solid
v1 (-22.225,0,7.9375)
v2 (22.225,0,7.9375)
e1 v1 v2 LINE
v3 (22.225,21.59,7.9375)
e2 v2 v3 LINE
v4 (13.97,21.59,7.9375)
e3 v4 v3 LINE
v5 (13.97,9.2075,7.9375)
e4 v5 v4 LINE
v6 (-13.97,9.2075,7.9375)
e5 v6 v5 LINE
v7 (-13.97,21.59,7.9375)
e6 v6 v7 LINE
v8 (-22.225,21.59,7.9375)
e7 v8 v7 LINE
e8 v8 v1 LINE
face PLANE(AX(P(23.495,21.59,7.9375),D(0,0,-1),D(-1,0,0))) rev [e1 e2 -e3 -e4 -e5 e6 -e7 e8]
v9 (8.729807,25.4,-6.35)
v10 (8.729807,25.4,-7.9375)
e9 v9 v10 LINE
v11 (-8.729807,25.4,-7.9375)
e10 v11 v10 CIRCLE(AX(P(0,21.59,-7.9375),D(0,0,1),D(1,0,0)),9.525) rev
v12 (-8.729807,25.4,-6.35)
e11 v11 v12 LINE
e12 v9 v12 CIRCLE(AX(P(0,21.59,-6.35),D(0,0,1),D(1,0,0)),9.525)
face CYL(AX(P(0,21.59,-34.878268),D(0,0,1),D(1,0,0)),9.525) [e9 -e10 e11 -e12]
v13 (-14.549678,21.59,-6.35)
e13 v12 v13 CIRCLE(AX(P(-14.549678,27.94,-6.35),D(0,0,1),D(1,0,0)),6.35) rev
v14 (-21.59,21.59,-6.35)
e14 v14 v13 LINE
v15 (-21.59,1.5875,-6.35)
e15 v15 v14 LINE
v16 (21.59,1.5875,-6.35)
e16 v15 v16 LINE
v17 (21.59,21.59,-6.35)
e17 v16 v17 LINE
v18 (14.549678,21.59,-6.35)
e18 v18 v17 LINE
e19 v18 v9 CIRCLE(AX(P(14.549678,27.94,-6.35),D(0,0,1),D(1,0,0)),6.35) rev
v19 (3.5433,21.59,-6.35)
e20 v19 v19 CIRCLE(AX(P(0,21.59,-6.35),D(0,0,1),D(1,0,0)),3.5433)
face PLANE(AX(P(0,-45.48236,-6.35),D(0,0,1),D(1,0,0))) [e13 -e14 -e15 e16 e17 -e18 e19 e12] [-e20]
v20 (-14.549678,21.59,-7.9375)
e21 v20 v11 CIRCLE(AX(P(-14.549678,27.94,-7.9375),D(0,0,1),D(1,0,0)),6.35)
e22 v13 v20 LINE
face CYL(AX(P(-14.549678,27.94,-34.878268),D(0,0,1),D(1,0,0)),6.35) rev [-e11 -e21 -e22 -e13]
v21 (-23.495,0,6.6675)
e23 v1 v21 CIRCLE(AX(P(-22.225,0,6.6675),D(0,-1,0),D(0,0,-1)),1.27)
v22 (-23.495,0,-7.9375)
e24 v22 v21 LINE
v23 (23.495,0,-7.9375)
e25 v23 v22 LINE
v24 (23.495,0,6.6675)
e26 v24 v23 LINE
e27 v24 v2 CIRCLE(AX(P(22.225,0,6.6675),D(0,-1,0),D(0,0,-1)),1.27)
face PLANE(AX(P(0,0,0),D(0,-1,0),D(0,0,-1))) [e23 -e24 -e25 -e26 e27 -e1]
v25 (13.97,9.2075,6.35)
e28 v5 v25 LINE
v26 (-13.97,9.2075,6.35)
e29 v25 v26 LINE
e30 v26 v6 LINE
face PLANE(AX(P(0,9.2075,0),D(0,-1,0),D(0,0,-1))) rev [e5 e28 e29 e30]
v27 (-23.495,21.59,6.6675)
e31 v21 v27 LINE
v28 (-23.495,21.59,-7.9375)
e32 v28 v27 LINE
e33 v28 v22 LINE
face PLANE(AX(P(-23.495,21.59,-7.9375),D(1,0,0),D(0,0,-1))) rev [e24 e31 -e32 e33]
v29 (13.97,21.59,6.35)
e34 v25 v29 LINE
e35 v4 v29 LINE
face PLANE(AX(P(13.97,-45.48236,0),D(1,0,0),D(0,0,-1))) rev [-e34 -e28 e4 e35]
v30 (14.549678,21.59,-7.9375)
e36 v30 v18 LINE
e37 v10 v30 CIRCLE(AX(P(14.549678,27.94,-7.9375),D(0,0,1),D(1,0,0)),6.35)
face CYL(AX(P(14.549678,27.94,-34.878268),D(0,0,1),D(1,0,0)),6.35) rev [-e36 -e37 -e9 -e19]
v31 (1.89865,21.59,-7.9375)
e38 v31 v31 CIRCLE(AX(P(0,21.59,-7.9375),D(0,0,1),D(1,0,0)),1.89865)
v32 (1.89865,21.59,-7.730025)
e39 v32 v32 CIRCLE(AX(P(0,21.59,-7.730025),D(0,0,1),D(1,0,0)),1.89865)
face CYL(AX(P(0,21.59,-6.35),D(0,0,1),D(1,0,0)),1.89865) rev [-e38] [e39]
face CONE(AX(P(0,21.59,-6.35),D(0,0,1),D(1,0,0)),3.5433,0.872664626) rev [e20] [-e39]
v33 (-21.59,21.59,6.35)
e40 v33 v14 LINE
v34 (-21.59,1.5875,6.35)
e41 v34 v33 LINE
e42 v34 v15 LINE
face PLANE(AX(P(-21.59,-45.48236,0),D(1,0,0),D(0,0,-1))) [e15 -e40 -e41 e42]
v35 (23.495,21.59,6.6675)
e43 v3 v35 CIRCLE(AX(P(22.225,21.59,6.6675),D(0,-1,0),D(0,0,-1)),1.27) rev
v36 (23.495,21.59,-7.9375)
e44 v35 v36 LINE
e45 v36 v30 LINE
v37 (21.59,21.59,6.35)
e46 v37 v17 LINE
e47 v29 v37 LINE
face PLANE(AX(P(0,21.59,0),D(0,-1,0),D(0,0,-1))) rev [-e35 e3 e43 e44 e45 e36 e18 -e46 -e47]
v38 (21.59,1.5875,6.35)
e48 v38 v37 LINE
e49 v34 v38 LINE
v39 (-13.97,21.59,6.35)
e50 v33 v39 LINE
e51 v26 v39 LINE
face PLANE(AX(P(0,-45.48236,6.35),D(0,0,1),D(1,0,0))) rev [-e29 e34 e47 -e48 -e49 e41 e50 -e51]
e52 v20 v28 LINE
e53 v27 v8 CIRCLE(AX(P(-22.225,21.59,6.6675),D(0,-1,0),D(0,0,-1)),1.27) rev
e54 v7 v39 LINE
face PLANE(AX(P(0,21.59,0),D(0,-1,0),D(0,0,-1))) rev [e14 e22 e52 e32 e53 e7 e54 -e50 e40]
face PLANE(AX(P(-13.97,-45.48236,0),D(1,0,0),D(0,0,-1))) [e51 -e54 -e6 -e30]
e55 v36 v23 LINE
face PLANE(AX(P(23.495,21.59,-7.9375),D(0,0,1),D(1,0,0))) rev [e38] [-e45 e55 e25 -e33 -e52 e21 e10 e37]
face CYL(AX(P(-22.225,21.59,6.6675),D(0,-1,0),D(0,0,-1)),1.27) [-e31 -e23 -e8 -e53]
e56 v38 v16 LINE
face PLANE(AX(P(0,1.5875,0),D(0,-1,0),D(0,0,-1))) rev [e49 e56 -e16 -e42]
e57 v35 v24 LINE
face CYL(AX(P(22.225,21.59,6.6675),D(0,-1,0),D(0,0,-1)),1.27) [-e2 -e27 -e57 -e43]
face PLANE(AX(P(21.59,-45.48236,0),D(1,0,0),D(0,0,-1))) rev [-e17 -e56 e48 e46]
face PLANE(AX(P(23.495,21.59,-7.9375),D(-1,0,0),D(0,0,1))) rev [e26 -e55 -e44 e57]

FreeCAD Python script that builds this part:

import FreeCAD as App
import Part
import Sketcher
Q = App.Units.Quantity


def edges_at(feature, points):
    """Names of the edges that pass closest to the given points."""
    edges = feature.Shape.Edges
    near = lambda p: min(range(len(edges)), key=lambda i: edges[i].distToShape(Part.Vertex(*p))[0])
    return sorted({f"Edge{near(p) + 1}" for p in points})


def add_polygon(sketch, points):
    """Adds a closed chain of lines whose ends are joined by coincident constraints."""
    first, n = sketch.GeometryCount, len(points)
    for a, b in zip(points, points[1:] + points[:1]):
        sketch.addGeometry(Part.LineSegment(App.Vector(*a, 0), App.Vector(*b, 0)), False)
    for i in range(n):
        sketch.addConstraint(Sketcher.Constraint("Coincident", first + i, 2, first + (i + 1) % n, 1))

doc = App.newDocument("Part")
body = doc.addObject("PartDesign::Body", "Body")

sketch1 = doc.addObject("Sketcher::SketchObject", "Sketch")
body.addObject(sketch1)
sketch1.AttachmentSupport = (doc.XZ_Plane, [""])
sketch1.MapMode = "FlatFace"
add_polygon(sketch1, [(-23.495, -7.9375), (-23.495, 7.9375), (23.495, 7.9375), (23.495, -7.9375)])
sketch1.addConstraint(Sketcher.Constraint("Vertical", 0))
sketch1.addConstraint(Sketcher.Constraint("Horizontal", 1))
sketch1.addConstraint(Sketcher.Constraint("Vertical", 2))
sketch1.addConstraint(Sketcher.Constraint("Horizontal", 3))
sketch1.addConstraint(Sketcher.Constraint("Symmetric", 0, 2, 2, 2, -1, 1))
sketch1.addConstraint(Sketcher.Constraint("DistanceX", 1, 1, 1, 2, Q("1.85 in")))
sketch1.addConstraint(Sketcher.Constraint("DistanceY", 0, 1, 0, 2, Q("0.625 in")))
pad1 = doc.addObject("PartDesign::Pad", "Pad")
body.addObject(pad1)
pad1.Profile = sketch1
pad1.Length = Q("0.85 in")
pad1.Reversed = True

sketch2 = doc.addObject("Sketcher::SketchObject", "Sketch001")
body.addObject(sketch2)
sketch2.AttachmentSupport = (doc.XZ_Plane, [""])
sketch2.MapMode = "FlatFace"
sketch2.AttachmentOffset = App.Placement(App.Vector(0, 0, -0.85 * 25.4), App.Rotation())
add_polygon(sketch2, [(-21.59, -6.35), (-21.59, 6.35), (-13.97, 6.35), (-13.97, 7.9375), (13.97, 7.9375), (13.97, 6.35), (21.59, 6.35), (21.59, -6.35)])
sketch2.addConstraint(Sketcher.Constraint("Vertical", 0))
sketch2.addConstraint(Sketcher.Constraint("Horizontal", 1))
sketch2.addConstraint(Sketcher.Constraint("Vertical", 2))
sketch2.addConstraint(Sketcher.Constraint("Horizontal", 3))
sketch2.addConstraint(Sketcher.Constraint("Vertical", 4))
sketch2.addConstraint(Sketcher.Constraint("Horizontal", 5))
sketch2.addConstraint(Sketcher.Constraint("Vertical", 6))
sketch2.addConstraint(Sketcher.Constraint("Horizontal", 7))
sketch2.addConstraint(Sketcher.Constraint("Symmetric", 0, 2, 6, 2, -1, 1))
sketch2.addConstraint(Sketcher.Constraint("Symmetric", 1, 2, 4, 2, -2))
sketch2.addConstraint(Sketcher.Constraint("DistanceX", 1, 1, 1, 2, Q("0.3 in")))
sketch2.addConstraint(Sketcher.Constraint("DistanceX", 3, 1, 3, 2, Q("1.1 in")))
sketch2.addConstraint(Sketcher.Constraint("DistanceY", 0, 1, 0, 2, Q("0.5 in")))
sketch2.addConstraint(Sketcher.Constraint("DistanceY", 2, 1, 2, 2, Q("0.0625 in")))
pocket1 = doc.addObject("PartDesign::Pocket", "Pocket")
body.addObject(pocket1)
pocket1.Profile = sketch2
pocket1.Length = Q("0.7875 in")
pocket1.Reversed = True

sketch3 = doc.addObject("Sketcher::SketchObject", "Sketch002")
body.addObject(sketch3)
sketch3.AttachmentSupport = (doc.XY_Plane, [""])
sketch3.MapMode = "FlatFace"
sketch3.AttachmentOffset = App.Placement(App.Vector(0, 0, -0.25 * 25.4), App.Rotation())
sketch3.addGeometry(Part.Circle(App.Vector(0, 21.59, 0), App.Vector(0, 0, 1), 9.525), False)
sketch3.addConstraint(Sketcher.Constraint("PointOnObject", 0, 3, -2))
sketch3.addConstraint(Sketcher.Constraint("Diameter", 0, Q("0.75 in")))
sketch3.addConstraint(Sketcher.Constraint("DistanceY", -1, 1, 0, 3, Q("0.85 in")))
pad2 = doc.addObject("PartDesign::Pad", "Pad001")
body.addObject(pad2)
pad2.Profile = sketch3
pad2.Length = Q("0.0625 in")
pad2.Reversed = True

sketch4 = doc.addObject("Sketcher::SketchObject", "Sketch003")
body.addObject(sketch4)
sketch4.AttachmentSupport = (doc.YZ_Plane, [""])
sketch4.MapMode = "FlatFace"
add_polygon(sketch4, [(21.59, -7.9375), (21.59, -6.35), (18.0467, -6.35), (19.69135, -7.730025), (19.69135, -7.9375)])
sketch4.addGeometry(Part.LineSegment(App.Vector(21.59, -6.35, 0), App.Vector(21.59, -7.9375, 0)), True)
sketch4.addConstraint(Sketcher.Constraint("Vertical", 0))
sketch4.addConstraint(Sketcher.Constraint("Horizontal", 1))
sketch4.addConstraint(Sketcher.Constraint("Vertical", 3))
sketch4.addConstraint(Sketcher.Constraint("Horizontal", 4))
sketch4.addConstraint(Sketcher.Constraint("Vertical", 5))
sketch4.addConstraint(Sketcher.Constraint("Coincident", 5, 1, 0, 2))
sketch4.addConstraint(Sketcher.Constraint("Horizontal", 3, 2, 5, 2))
sketch4.addConstraint(Sketcher.Constraint("Angle", 2, Q("-40 deg")))
sketch4.addConstraint(Sketcher.Constraint("DistanceY", 0, 1, 0, 2, Q("0.0625 in")))
sketch4.addConstraint(Sketcher.Constraint("DistanceX", -1, 1, 0, 2, Q("0.85 in")))
sketch4.addConstraint(Sketcher.Constraint("DistanceY", 0, 2, -1, 1, Q("0.25 in")))
sketch4.addConstraint(Sketcher.Constraint("DistanceX", 1, 2, 1, 1, Q("0.1395 in")))
sketch4.addConstraint(Sketcher.Constraint("DistanceX", 4, 1, 4, 2, 1.89865))
groove = doc.addObject("PartDesign::Groove", "Groove")
body.addObject(groove)
groove.Profile = sketch4
groove.ReferenceAxis = (sketch4, ["Axis0"])
groove.Angle = 360
doc.recompute()

fillet = doc.addObject("PartDesign::Fillet", "Fillet")
body.addObject(fillet)
fillet.Base = (groove, edges_at(groove, [(9.525, 21.59, -7.144), (-9.525, 21.59, -7.144)]))
fillet.Radius = Q("0.25 in")
doc.recompute()

fillet2 = doc.addObject("PartDesign::Fillet", "Fillet001")
body.addObject(fillet2)
fillet2.Base = (fillet, edges_at(fillet, [(23.495, 10.795, 7.938), (-23.495, 10.795, 7.938)]))
fillet2.Radius = Q("0.05 in")

sketch5 = doc.addObject("Sketcher::SketchObject", "Sketch004")
body.addObject(sketch5)
sketch5.AttachmentSupport = (doc.XZ_Plane, [""])
sketch5.MapMode = "FlatFace"
sketch5.AttachmentOffset = App.Placement(App.Vector(0, 0, -0.0625 * 25.4), App.Rotation())
add_polygon(sketch5, [(-13.97, 6.35), (-13.97, 7.9375), (13.97, 7.9375), (13.97, 6.35)])
sketch5.addConstraint(Sketcher.Constraint("Vertical", 0))
sketch5.addConstraint(Sketcher.Constraint("Horizontal", 1))
sketch5.addConstraint(Sketcher.Constraint("Vertical", 2))
sketch5.addConstraint(Sketcher.Constraint("Horizontal", 3))
sketch5.addConstraint(Sketcher.Constraint("DistanceX", 1, 1, 1, 2, Q("1.1 in")))
sketch5.addConstraint(Sketcher.Constraint("DistanceY", 0, 1, 0, 2, Q("0.0625 in")))
sketch5.addConstraint(Sketcher.Constraint("DistanceX", 0, 2, -1, 1, Q("0.55 in")))
sketch5.addConstraint(Sketcher.Constraint("DistanceY", -1, 1, 2, 2, Q("0.25 in")))
pad3 = doc.addObject("PartDesign::Pad", "Pad002")
body.addObject(pad3)
pad3.Profile = sketch5
pad3.Length = Q("0.3 in")
pad3.Reversed = True

doc.recompute()
